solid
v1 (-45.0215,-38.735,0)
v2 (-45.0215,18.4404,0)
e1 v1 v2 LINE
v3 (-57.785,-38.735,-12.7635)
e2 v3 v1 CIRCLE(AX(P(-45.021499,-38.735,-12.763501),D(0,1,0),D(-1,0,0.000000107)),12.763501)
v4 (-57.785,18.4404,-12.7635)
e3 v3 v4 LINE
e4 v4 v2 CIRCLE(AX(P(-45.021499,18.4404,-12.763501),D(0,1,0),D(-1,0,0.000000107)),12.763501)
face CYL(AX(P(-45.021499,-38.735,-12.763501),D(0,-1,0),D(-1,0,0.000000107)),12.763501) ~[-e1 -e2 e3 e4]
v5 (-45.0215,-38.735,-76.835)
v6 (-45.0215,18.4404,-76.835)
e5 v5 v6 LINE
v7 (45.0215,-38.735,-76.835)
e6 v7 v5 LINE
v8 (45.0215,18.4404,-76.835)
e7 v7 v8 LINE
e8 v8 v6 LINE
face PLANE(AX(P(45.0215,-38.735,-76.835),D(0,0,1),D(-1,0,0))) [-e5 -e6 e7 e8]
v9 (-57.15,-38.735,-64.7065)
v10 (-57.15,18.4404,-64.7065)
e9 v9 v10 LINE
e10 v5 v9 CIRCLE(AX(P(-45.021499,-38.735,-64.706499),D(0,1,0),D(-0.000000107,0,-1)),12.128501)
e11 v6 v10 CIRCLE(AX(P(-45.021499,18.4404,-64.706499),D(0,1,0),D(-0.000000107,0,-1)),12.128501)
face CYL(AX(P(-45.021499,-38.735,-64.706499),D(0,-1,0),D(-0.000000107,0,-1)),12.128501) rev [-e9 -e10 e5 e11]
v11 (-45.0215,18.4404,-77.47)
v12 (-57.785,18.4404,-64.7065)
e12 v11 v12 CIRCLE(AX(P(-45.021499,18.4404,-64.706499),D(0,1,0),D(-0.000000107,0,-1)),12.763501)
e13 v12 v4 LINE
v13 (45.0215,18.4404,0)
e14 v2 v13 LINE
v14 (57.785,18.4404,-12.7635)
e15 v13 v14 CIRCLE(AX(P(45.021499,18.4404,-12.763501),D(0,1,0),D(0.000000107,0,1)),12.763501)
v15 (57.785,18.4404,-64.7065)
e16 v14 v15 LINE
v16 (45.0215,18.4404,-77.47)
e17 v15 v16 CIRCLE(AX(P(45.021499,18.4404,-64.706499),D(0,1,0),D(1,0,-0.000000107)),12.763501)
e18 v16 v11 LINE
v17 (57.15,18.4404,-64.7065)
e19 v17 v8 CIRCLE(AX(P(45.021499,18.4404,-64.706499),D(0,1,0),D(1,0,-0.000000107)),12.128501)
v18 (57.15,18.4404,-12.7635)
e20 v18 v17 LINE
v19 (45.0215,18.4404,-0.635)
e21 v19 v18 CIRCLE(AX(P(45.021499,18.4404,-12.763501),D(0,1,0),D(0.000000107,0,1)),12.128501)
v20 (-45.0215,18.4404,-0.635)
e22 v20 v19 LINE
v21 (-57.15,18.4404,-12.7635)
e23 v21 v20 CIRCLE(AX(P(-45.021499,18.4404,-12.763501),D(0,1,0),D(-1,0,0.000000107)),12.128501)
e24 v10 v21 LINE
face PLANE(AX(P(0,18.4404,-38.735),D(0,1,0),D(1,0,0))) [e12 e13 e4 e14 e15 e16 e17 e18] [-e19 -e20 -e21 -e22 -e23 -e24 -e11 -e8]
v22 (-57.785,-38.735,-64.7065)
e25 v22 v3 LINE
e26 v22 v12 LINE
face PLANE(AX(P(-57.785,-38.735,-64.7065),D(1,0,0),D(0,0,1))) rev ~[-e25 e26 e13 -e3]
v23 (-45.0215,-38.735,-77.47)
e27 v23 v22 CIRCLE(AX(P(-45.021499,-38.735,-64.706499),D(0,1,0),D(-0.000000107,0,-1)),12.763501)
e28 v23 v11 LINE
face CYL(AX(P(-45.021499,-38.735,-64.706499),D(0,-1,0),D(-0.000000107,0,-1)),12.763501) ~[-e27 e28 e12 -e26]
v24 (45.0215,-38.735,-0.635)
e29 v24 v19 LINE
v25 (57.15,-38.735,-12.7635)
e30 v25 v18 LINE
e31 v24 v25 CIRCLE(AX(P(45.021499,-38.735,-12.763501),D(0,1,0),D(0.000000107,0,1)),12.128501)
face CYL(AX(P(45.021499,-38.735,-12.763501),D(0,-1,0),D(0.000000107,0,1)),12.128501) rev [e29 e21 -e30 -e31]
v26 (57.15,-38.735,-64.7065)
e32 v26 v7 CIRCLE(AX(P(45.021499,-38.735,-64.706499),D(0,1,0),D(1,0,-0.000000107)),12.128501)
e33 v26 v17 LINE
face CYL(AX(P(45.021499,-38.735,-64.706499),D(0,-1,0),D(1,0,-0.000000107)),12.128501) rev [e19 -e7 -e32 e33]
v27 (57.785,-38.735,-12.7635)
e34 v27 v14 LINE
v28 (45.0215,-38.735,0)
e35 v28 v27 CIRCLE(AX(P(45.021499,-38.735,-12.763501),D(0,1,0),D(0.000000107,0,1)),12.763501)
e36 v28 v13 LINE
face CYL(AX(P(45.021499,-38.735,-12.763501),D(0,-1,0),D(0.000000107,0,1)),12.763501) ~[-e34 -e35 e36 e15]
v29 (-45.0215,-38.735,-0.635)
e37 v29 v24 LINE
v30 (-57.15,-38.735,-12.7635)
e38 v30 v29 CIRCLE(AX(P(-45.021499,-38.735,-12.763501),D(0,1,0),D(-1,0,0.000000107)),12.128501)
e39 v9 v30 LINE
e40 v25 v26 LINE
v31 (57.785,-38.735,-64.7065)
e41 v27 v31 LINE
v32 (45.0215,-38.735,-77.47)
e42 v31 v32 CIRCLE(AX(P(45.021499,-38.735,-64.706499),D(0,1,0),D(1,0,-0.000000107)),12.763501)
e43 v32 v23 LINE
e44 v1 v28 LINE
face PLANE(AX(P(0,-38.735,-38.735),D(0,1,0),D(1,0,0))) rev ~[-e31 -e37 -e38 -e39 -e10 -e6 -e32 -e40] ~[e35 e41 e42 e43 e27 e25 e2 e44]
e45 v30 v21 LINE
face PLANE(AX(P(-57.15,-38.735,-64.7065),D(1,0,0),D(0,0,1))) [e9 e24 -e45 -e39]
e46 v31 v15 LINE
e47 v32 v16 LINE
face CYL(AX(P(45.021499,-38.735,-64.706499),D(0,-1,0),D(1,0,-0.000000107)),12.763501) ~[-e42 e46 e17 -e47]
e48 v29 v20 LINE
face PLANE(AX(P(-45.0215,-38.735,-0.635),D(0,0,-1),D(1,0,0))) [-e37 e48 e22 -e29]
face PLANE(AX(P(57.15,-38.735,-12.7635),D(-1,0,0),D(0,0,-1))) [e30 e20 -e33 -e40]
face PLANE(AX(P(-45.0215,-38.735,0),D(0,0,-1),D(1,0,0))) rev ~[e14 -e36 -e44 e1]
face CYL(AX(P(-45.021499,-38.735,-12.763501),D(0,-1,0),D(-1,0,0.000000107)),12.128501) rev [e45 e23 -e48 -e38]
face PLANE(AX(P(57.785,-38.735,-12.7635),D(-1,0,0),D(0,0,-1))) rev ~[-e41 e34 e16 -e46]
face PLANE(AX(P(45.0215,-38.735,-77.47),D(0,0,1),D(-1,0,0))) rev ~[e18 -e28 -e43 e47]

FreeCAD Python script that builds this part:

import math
import FreeCAD as App
import Part
import Sketcher
Q = App.Units.Quantity


def faces_at(feature, points):
    """Names of the faces that lie closest to the given points."""
    faces = feature.Shape.Faces
    near = lambda p: min(range(len(faces)), key=lambda i: faces[i].distToShape(Part.Vertex(*p))[0])
    return sorted({f"Face{near(p) + 1}" for p in points})

doc = App.newDocument("Part")
params = doc.addObject("Spreadsheet::Sheet", "Params")
for row, (alias, value) in enumerate([
    ("sketch1_width", "3.545 in"),
    ("sketch1_height", "2.045 in"),
    ("pad1_length", "2.251 in"),
    ("thickness_wall", "0.025 in"),
], start=1):
    params.set(f"A{row}", alias)
    params.set(f"B{row}", "=" + value)
    params.setAlias(f"B{row}", alias)

body = doc.addObject("PartDesign::Body", "Body")

# Sketch on XY plane
sketch1 = body.newObject("Sketcher::SketchObject", "Sketch")
sketch1.AttachmentSupport = (doc.getObject("XY_Plane"), [""])
sketch1.MapMode = "FlatFace"
sketch1.addGeometry(Part.ArcOfCircle(Part.Circle(App.Vector(45, 26, 0), App.Vector(0, 0, 1), 13), math.radians(0), math.radians(90)), False)
sketch1.addGeometry(Part.LineSegment(App.Vector(45, 39, 0), App.Vector(-45, 39, 0)), False)
sketch1.addGeometry(Part.ArcOfCircle(Part.Circle(App.Vector(-45, 26, 0), App.Vector(0, 0, 1), 13), math.radians(90), math.radians(180)), False)
sketch1.addGeometry(Part.LineSegment(App.Vector(-58, 26, 0), App.Vector(-58, -26, 0)), False)
sketch1.addGeometry(Part.ArcOfCircle(Part.Circle(App.Vector(-45, -26, 0), App.Vector(0, 0, 1), 13), math.radians(-180), math.radians(-90)), False)
sketch1.addGeometry(Part.LineSegment(App.Vector(-45, -39, 0), App.Vector(45, -39, 0)), False)
sketch1.addGeometry(Part.ArcOfCircle(Part.Circle(App.Vector(45, -26, 0), App.Vector(0, 0, 1), 13), math.radians(-90), math.radians(0)), False)
sketch1.addGeometry(Part.LineSegment(App.Vector(58, -26, 0), App.Vector(58, 26, 0)), False)
sketch1.addConstraint(Sketcher.Constraint("Tangent", 0, 2, 1, 1))
sketch1.addConstraint(Sketcher.Constraint("Tangent", 1, 2, 2, 1))
sketch1.addConstraint(Sketcher.Constraint("Tangent", 2, 2, 3, 1))
sketch1.addConstraint(Sketcher.Constraint("Tangent", 3, 2, 4, 1))
sketch1.addConstraint(Sketcher.Constraint("Tangent", 4, 2, 5, 1))
sketch1.addConstraint(Sketcher.Constraint("Tangent", 5, 2, 6, 1))
sketch1.addConstraint(Sketcher.Constraint("Tangent", 6, 2, 7, 1))
sketch1.addConstraint(Sketcher.Constraint("Tangent", 7, 2, 0, 1))
sketch1.addConstraint(Sketcher.Constraint("Horizontal", 1))
sketch1.addConstraint(Sketcher.Constraint("Vertical", 3))
sketch1.addConstraint(Sketcher.Constraint("Horizontal", 5))
sketch1.addConstraint(Sketcher.Constraint("Vertical", 7))
sketch1.addConstraint(Sketcher.Constraint("Equal", 0, 2))
sketch1.addConstraint(Sketcher.Constraint("Equal", 2, 4))
sketch1.addConstraint(Sketcher.Constraint("Equal", 4, 6))
sketch1.addConstraint(Sketcher.Constraint("Symmetric", 0, 3, 4, 3, -1, 1))
sketch1.addConstraint(Sketcher.Constraint("Radius", 0, Q("0.5025001 in")))
sketch1.addConstraint(Sketcher.Constraint("DistanceX", 1, 2, 1, 1, Q("3.545 in")))
sketch1.addConstraint(Sketcher.Constraint("DistanceY", 3, 2, 3, 1, Q("2.045 in")))
sketch1.setExpression("Constraints[17]", "Params.sketch1_width")
sketch1.setExpression("Constraints[18]", "Params.sketch1_height")
pad1 = body.newObject("PartDesign::Pad", "Pad")
pad1.Profile = sketch1
pad1.setExpression("Length", "Params.pad1_length")
doc.recompute()

thickness = body.newObject("PartDesign::Thickness", "Thickness")
thickness.Base = (pad1, faces_at(pad1, [(0, 0, 57.175), (0, 0, 0)]))
thickness.setExpression("Value", "Params.thickness_wall")
thickness.Reversed = True
thickness.Join = "Arc"
body2 = doc.addObject("PartDesign::Body", "Body001")
doc.recompute()

body.Placement = App.Placement(App.Vector(0, -38.735, -38.735), App.Rotation(App.Vector(-1, 0, 0), 90))
boolean = body2.newObject("PartDesign::Boolean", "Boolean")
boolean.Type = "Fuse"
boolean.addObjects([body])

doc.recompute()
